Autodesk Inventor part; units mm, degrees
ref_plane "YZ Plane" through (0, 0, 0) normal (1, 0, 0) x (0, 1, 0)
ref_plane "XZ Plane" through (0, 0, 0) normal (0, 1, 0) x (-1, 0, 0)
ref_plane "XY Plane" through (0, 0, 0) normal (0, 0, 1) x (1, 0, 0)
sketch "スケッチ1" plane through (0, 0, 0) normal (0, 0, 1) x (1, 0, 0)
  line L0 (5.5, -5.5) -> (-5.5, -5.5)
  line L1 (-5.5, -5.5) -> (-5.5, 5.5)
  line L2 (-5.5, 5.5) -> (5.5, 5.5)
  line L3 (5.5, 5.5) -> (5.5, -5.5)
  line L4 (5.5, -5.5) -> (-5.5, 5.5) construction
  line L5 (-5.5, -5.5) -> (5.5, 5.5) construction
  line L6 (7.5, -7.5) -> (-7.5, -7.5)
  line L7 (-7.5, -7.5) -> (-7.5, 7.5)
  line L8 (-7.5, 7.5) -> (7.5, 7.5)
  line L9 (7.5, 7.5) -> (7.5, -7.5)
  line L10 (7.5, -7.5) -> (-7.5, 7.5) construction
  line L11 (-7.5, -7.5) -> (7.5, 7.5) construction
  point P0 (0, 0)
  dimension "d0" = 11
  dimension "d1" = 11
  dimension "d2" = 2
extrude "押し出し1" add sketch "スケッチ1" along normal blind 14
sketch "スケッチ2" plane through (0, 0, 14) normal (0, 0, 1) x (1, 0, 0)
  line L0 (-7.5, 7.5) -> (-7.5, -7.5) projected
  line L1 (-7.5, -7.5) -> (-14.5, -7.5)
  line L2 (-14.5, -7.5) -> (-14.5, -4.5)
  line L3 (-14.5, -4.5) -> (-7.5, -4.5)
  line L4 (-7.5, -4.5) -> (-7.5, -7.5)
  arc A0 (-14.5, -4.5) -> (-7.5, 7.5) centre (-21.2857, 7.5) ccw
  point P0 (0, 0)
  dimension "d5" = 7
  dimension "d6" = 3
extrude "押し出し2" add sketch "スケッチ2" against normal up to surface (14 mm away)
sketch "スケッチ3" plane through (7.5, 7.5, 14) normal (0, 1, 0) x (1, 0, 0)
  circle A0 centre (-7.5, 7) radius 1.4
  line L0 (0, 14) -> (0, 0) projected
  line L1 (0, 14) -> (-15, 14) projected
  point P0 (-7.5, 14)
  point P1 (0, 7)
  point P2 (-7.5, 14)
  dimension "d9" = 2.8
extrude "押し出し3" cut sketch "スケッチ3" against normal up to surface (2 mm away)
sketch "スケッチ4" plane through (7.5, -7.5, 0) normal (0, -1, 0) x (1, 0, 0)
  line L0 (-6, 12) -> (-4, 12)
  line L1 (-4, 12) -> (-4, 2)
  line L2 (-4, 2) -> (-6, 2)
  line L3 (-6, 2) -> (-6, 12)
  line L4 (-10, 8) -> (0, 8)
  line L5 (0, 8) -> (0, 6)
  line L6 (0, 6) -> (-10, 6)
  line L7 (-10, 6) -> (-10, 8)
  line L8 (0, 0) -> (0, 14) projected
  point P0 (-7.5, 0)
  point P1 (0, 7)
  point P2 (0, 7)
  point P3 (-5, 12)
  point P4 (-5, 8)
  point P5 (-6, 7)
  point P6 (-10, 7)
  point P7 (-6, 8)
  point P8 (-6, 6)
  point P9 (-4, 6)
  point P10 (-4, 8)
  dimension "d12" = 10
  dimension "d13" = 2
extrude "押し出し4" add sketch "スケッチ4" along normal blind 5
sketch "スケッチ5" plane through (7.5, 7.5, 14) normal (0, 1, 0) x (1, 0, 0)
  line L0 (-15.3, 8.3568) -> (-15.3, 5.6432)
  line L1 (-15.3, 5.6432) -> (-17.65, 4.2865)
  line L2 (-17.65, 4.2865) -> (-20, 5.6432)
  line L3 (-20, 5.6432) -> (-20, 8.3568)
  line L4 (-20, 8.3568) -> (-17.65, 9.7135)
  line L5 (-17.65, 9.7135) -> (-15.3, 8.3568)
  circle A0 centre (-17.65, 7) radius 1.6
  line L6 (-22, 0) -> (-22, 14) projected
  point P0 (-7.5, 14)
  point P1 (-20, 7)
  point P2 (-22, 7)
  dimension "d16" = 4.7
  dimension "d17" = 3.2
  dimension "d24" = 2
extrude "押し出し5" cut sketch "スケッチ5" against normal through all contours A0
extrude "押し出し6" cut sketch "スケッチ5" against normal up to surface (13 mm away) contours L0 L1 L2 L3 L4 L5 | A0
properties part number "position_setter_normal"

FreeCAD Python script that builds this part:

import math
import FreeCAD as App
import Part
import Sketcher

V = App.Vector
Q = App.Units.Quantity


def add_polygon(sketch, points):
    """Adds a closed chain of lines whose ends are joined by coincident constraints."""
    first, n = sketch.GeometryCount, len(points)
    for a, b in zip(points, points[1:] + points[:1]):
        sketch.addGeometry(Part.LineSegment(App.Vector(*a, 0), App.Vector(*b, 0)), False)
    for i in range(n):
        sketch.addConstraint(Sketcher.Constraint("Coincident", first + i, 2, first + (i + 1) % n, 1))

doc = App.newDocument("Part")
body = doc.addObject("PartDesign::Body", "Body")

sketch1 = doc.addObject("Sketcher::SketchObject", "Sketch")
body.addObject(sketch1)
sketch1.AttachmentSupport = (doc.XY_Plane, [""])
sketch1.MapMode = "FlatFace"
add_polygon(sketch1, [(-8, -8), (8, -8), (8, 8), (-8, 8)])
add_polygon(sketch1, [(6, 6), (6, -6), (-6, -6), (-6, 6)])
sketch1.addConstraint(Sketcher.Constraint("Horizontal", 0))
sketch1.addConstraint(Sketcher.Constraint("Vertical", 1))
sketch1.addConstraint(Sketcher.Constraint("Horizontal", 2))
sketch1.addConstraint(Sketcher.Constraint("Vertical", 3))
sketch1.addConstraint(Sketcher.Constraint("Vertical", 4))
sketch1.addConstraint(Sketcher.Constraint("Horizontal", 5))
sketch1.addConstraint(Sketcher.Constraint("Vertical", 6))
sketch1.addConstraint(Sketcher.Constraint("Horizontal", 7))
sketch1.addConstraint(Sketcher.Constraint("Symmetric", 0, 2, 2, 2, -1, 1))
sketch1.addConstraint(Sketcher.Constraint("Symmetric", 4, 2, 6, 2, -1, 1))
sketch1.addConstraint(Sketcher.Constraint("Equal", 2, 1))
sketch1.addConstraint(Sketcher.Constraint("Equal", 7, 4))
sketch1.addConstraint(Sketcher.Constraint("DistanceX", 5, 2, 5, 1, Q("11 mm")))
sketch1.addConstraint(Sketcher.Constraint("DistanceX", 4, 2, 0, 2, Q("2 mm")))
pad1 = doc.addObject("PartDesign::Pad", "Pad")
body.addObject(pad1)
pad1.Profile = sketch1
pad1.Length = 14

sketch2 = doc.addObject("Sketcher::SketchObject", "Sketch001")
body.addObject(sketch2)
sketch2.AttachmentSupport = (doc.XY_Plane, [""])
sketch2.MapMode = "FlatFace"
sketch2.AttachmentOffset = App.Placement(V(0, 0, 14), App.Rotation())
sketch2.addGeometry(Part.ArcOfCircle(Part.Circle(V(-21.3, 7.5, 0), V(0, 0, 1), 13.8), math.radians(-61), math.radians(0)), False)
sketch2.addGeometry(Part.LineSegment(V(-14.5, -4.5, 0), V(-14.5, -7.5, 0)), False)
sketch2.addGeometry(Part.LineSegment(V(-14.5, -7.5, 0), V(-7.5, -7.5, 0)), False)
sketch2.addGeometry(Part.LineSegment(V(-7.5, -7.5, 0), V(-7.5, 7.5, 0)), False)
sketch2.addConstraint(Sketcher.Constraint("Coincident", 0, 1, 1, 1))
sketch2.addConstraint(Sketcher.Constraint("Coincident", 1, 2, 2, 1))
sketch2.addConstraint(Sketcher.Constraint("Coincident", 2, 2, 3, 1))
sketch2.addConstraint(Sketcher.Constraint("Tangent", 3, 2, 0, 2))
sketch2.addConstraint(Sketcher.Constraint("Vertical", 1))
sketch2.addConstraint(Sketcher.Constraint("Horizontal", 2))
sketch2.addConstraint(Sketcher.Constraint("Vertical", 3))
sketch2.addConstraint(Sketcher.Constraint("DistanceX", 2, 1, 2, 2, Q("7 mm")))
sketch2.addConstraint(Sketcher.Constraint("DistanceY", 1, 2, 1, 1, Q("3 mm")))
sketch2.addConstraint(Sketcher.Constraint("DistanceY", 3, 1, 3, 2, Q("15 mm")))
sketch2.addConstraint(Sketcher.Constraint("DistanceY", -1, 1, 0, 3, Q("7.5 mm")))
sketch2.addConstraint(Sketcher.Constraint("DistanceX", 0, 1, -1, 1, Q("14.5 mm")))
pad2 = doc.addObject("PartDesign::Pad", "Pad001")
body.addObject(pad2)
pad2.Profile = sketch2
pad2.Length = 14
pad2.Reversed = True

sketch3 = doc.addObject("Sketcher::SketchObject", "Sketch002")
body.addObject(sketch3)
sketch3.AttachmentSupport = (doc.XZ_Plane, [""])
sketch3.MapMode = "FlatFace"
sketch3.AttachmentOffset = App.Placement(V(0, 0, -7.5), App.Rotation())
sketch3.addGeometry(Part.Circle(V(0, 7, 0), V(0, 0, 1), 1.4), False)
sketch3.addConstraint(Sketcher.Constraint("PointOnObject", 0, 3, -2))
sketch3.addConstraint(Sketcher.Constraint("Diameter", 0, Q("2.8 mm")))
sketch3.addConstraint(Sketcher.Constraint("DistanceY", -1, 1, 0, 3, Q("7 mm")))
pocket1 = doc.addObject("PartDesign::Pocket", "Pocket")
body.addObject(pocket1)
pocket1.Profile = sketch3
pocket1.Length = 2
pocket1.Reversed = True

sketch4 = doc.addObject("Sketcher::SketchObject", "Sketch003")
body.addObject(sketch4)
sketch4.AttachmentSupport = (doc.XZ_Plane, [""])
sketch4.MapMode = "FlatFace"
sketch4.AttachmentOffset = App.Placement(V(0, 0, 7.5), App.Rotation())
add_polygon(sketch4, [(3.5, 12), (1.5, 12), (1.5, 8), (-2.5, 8), (-2.5, 6), (1.5, 6), (1.5, 2), (3.5, 2), (3.5, 6), (7.5, 6), (7.5, 8), (3.5, 8)])
sketch4.addConstraint(Sketcher.Constraint("Horizontal", 0))
sketch4.addConstraint(Sketcher.Constraint("Vertical", 1))
sketch4.addConstraint(Sketcher.Constraint("Horizontal", 2))
sketch4.addConstraint(Sketcher.Constraint("Vertical", 3))
sketch4.addConstraint(Sketcher.Constraint("Horizontal", 4))
sketch4.addConstraint(Sketcher.Constraint("Vertical", 5))
sketch4.addConstraint(Sketcher.Constraint("Horizontal", 6))
sketch4.addConstraint(Sketcher.Constraint("Vertical", 7))
sketch4.addConstraint(Sketcher.Constraint("Horizontal", 8))
sketch4.addConstraint(Sketcher.Constraint("Vertical", 9))
sketch4.addConstraint(Sketcher.Constraint("Horizontal", 10))
sketch4.addConstraint(Sketcher.Constraint("Vertical", 11))
sketch4.addConstraint(Sketcher.Constraint("Horizontal", 4, 2, 7, 2))
sketch4.addConstraint(Sketcher.Constraint("Horizontal", 2, 2, 9, 2))
sketch4.addConstraint(Sketcher.Constraint("Vertical", 1, 2, 4, 2))
sketch4.addConstraint(Sketcher.Constraint("Vertical", 7, 2, 10, 2))
sketch4.addConstraint(Sketcher.Constraint("Equal", 4, 8))
sketch4.addConstraint(Sketcher.Constraint("Equal", 10, 1))
sketch4.addConstraint(Sketcher.Constraint("Equal", 6, 3))
sketch4.addConstraint(Sketcher.Constraint("Equal", 1, 5))
sketch4.addConstraint(Sketcher.Constraint("DistanceX", 0, 2, 0, 1, Q("2 mm")))
sketch4.addConstraint(Sketcher.Constraint("DistanceY", -1, 1, 5, 2, Q("2 mm")))
sketch4.addConstraint(Sketcher.Constraint("DistanceY", 5, 2, 0, 2, Q("10 mm")))
sketch4.addConstraint(Sketcher.Constraint("DistanceX", -1, 1, 0, 2, Q("1.5 mm")))
pad3 = doc.addObject("PartDesign::Pad", "Pad002")
body.addObject(pad3)
pad3.Profile = sketch4
pad3.Length = 5

sketch5 = doc.addObject("Sketcher::SketchObject", "Sketch004")
body.addObject(sketch5)
sketch5.AttachmentSupport = (doc.XZ_Plane, [""])
sketch5.MapMode = "FlatFace"
sketch5.AttachmentOffset = App.Placement(V(0, 0, -7.5), App.Rotation())
sketch5.addGeometry(Part.Circle(V(-10.2, 7, 0), V(0, 0, 1), 1.6), False)
sketch5.addConstraint(Sketcher.Constraint("Diameter", 0, Q("3.2 mm")))
sketch5.addConstraint(Sketcher.Constraint("DistanceY", -1, 1, 0, 3, Q("7 mm")))
sketch5.addConstraint(Sketcher.Constraint("DistanceX", 0, 3, -1, 1, Q("10.15 mm")))
pocket2 = doc.addObject("PartDesign::Pocket", "Pocket001")
body.addObject(pocket2)
pocket2.Profile = sketch5
pocket2.Type = "ThroughAll"
pocket2.Reversed = True

sketch6 = doc.addObject("Sketcher::SketchObject", "Sketch005")
body.addObject(sketch6)
sketch6.AttachmentSupport = (doc.XZ_Plane, [""])
sketch6.MapMode = "FlatFace"
sketch6.AttachmentOffset = App.Placement(V(0, 0, -7.5), App.Rotation())
add_polygon(sketch6, [(-7.8, 8.4), (-7.8, 5.6), (-10.2, 4.3), (-12.5, 5.6), (-12.5, 8.4), (-10.2, 9.7)])
sketch6.addConstraint(Sketcher.Constraint("Vertical", 0))
sketch6.addConstraint(Sketcher.Constraint("Vertical", 3))
sketch6.addConstraint(Sketcher.Constraint("Parallel", 1, 4))
sketch6.addConstraint(Sketcher.Constraint("Parallel", 2, 5))
sketch6.addConstraint(Sketcher.Constraint("Horizontal", 0, 2, 2, 2))
sketch6.addConstraint(Sketcher.Constraint("Horizontal", 3, 2, 5, 2))
sketch6.addConstraint(Sketcher.Constraint("Vertical", 1, 2, 4, 2))
sketch6.addConstraint(Sketcher.Constraint("DistanceX", 2, 2, 0, 2, Q("4.7 mm")))
sketch6.addConstraint(Sketcher.Constraint("DistanceX", 0, 2, -1, 1, Q("7.8 mm")))
sketch6.addConstraint(Sketcher.Constraint("DistanceY", 0, 2, 0, 1, Q("2.7136 mm")))
sketch6.addConstraint(Sketcher.Constraint("DistanceY", 1, 2, 4, 2, Q("5.427 mm")))
sketch6.addConstraint(Sketcher.Constraint("DistanceY", -1, 1, 0, 2, Q("5.6432 mm")))
pocket3 = doc.addObject("PartDesign::Pocket", "Pocket002")
body.addObject(pocket3)
pocket3.Profile = sketch6
pocket3.Length = 13
pocket3.Reversed = True

doc.recompute()
